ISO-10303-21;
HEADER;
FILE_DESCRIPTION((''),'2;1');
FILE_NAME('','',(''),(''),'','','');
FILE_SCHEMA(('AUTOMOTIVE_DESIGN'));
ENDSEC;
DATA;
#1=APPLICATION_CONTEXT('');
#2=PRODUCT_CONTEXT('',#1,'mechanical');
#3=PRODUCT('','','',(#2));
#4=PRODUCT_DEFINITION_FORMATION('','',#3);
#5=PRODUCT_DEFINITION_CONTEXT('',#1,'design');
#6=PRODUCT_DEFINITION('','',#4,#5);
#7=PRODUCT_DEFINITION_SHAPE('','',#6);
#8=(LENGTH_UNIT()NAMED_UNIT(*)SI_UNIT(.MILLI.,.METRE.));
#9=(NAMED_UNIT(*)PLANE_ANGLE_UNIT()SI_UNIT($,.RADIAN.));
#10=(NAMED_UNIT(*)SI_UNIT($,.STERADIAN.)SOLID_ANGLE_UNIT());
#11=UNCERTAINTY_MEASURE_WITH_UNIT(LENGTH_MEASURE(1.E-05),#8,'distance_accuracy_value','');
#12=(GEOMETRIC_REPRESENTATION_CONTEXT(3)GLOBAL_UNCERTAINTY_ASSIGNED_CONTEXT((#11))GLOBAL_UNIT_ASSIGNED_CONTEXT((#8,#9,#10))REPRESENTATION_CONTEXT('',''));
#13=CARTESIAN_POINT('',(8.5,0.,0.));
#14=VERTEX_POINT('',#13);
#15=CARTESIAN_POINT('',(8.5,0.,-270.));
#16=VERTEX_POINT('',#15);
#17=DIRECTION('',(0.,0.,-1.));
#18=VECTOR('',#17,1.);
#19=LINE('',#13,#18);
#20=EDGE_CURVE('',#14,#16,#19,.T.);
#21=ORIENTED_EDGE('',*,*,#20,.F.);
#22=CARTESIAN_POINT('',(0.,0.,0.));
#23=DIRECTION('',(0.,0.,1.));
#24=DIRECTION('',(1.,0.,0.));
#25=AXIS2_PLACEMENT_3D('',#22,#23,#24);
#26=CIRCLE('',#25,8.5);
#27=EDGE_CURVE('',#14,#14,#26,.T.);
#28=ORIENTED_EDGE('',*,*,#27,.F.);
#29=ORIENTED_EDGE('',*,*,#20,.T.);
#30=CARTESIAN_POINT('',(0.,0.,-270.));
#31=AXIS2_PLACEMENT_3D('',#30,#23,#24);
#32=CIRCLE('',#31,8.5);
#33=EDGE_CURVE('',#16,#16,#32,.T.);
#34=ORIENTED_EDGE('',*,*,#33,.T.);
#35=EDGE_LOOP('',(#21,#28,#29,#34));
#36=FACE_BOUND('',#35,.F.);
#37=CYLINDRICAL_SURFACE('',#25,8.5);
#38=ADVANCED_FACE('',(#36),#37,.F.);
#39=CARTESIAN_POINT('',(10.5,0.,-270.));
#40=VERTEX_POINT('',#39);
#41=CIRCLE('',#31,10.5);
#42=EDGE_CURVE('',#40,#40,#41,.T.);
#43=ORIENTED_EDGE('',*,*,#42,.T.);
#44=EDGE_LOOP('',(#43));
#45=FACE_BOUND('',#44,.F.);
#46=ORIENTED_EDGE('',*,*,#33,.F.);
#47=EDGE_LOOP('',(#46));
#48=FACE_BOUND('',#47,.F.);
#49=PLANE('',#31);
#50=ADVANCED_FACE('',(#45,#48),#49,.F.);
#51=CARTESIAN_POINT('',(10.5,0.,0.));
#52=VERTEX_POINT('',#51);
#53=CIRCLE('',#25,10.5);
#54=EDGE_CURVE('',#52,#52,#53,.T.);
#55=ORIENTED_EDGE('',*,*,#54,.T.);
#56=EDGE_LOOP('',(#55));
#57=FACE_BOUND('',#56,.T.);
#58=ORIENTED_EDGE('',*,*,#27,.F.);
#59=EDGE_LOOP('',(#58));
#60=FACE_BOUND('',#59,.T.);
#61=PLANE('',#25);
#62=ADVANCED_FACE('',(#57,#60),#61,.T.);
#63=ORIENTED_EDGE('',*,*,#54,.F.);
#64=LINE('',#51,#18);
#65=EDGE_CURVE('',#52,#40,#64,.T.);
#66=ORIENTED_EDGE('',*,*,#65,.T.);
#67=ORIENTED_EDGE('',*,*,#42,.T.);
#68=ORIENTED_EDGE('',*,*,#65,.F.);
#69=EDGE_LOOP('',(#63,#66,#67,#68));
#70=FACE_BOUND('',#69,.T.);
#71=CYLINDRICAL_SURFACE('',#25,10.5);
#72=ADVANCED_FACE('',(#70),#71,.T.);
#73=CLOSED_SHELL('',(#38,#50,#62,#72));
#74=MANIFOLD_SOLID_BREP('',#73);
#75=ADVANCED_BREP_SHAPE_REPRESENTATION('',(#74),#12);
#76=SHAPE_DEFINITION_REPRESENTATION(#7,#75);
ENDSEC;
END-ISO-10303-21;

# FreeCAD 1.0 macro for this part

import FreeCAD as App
import Part
import Sketcher
from FreeCAD import Vector
Q = App.Units.Quantity

doc = App.newDocument("Part")
body = doc.addObject("PartDesign::Body", "Body")

sketch1 = body.newObject("Sketcher::SketchObject", "Sketch")
sketch1.AttachmentSupport = (doc.getObject("XY_Plane"), [""])
sketch1.MapMode = "FlatFace"
sketch1.addGeometry(Part.Circle(Vector(0, 0, 0), Vector(0, 0, 1), 10), False)
sketch1.addGeometry(Part.Circle(Vector(0, 0, 0), Vector(0, 0, 1), 8), False)
sketch1.addConstraint(Sketcher.Constraint("Coincident", 0, 3, -1, 1))
sketch1.addConstraint(Sketcher.Constraint("Coincident", 1, 3, -1, 1))
sketch1.addConstraint(Sketcher.Constraint("Diameter", 0, Q("21 mm")))
sketch1.addConstraint(Sketcher.Constraint("Diameter", 1, Q("17 mm")))
pad1 = body.newObject("PartDesign::Pad", "Pad")
pad1.Profile = sketch1
pad1.Length = 270
pad1.Reversed = True

doc.recompute()
